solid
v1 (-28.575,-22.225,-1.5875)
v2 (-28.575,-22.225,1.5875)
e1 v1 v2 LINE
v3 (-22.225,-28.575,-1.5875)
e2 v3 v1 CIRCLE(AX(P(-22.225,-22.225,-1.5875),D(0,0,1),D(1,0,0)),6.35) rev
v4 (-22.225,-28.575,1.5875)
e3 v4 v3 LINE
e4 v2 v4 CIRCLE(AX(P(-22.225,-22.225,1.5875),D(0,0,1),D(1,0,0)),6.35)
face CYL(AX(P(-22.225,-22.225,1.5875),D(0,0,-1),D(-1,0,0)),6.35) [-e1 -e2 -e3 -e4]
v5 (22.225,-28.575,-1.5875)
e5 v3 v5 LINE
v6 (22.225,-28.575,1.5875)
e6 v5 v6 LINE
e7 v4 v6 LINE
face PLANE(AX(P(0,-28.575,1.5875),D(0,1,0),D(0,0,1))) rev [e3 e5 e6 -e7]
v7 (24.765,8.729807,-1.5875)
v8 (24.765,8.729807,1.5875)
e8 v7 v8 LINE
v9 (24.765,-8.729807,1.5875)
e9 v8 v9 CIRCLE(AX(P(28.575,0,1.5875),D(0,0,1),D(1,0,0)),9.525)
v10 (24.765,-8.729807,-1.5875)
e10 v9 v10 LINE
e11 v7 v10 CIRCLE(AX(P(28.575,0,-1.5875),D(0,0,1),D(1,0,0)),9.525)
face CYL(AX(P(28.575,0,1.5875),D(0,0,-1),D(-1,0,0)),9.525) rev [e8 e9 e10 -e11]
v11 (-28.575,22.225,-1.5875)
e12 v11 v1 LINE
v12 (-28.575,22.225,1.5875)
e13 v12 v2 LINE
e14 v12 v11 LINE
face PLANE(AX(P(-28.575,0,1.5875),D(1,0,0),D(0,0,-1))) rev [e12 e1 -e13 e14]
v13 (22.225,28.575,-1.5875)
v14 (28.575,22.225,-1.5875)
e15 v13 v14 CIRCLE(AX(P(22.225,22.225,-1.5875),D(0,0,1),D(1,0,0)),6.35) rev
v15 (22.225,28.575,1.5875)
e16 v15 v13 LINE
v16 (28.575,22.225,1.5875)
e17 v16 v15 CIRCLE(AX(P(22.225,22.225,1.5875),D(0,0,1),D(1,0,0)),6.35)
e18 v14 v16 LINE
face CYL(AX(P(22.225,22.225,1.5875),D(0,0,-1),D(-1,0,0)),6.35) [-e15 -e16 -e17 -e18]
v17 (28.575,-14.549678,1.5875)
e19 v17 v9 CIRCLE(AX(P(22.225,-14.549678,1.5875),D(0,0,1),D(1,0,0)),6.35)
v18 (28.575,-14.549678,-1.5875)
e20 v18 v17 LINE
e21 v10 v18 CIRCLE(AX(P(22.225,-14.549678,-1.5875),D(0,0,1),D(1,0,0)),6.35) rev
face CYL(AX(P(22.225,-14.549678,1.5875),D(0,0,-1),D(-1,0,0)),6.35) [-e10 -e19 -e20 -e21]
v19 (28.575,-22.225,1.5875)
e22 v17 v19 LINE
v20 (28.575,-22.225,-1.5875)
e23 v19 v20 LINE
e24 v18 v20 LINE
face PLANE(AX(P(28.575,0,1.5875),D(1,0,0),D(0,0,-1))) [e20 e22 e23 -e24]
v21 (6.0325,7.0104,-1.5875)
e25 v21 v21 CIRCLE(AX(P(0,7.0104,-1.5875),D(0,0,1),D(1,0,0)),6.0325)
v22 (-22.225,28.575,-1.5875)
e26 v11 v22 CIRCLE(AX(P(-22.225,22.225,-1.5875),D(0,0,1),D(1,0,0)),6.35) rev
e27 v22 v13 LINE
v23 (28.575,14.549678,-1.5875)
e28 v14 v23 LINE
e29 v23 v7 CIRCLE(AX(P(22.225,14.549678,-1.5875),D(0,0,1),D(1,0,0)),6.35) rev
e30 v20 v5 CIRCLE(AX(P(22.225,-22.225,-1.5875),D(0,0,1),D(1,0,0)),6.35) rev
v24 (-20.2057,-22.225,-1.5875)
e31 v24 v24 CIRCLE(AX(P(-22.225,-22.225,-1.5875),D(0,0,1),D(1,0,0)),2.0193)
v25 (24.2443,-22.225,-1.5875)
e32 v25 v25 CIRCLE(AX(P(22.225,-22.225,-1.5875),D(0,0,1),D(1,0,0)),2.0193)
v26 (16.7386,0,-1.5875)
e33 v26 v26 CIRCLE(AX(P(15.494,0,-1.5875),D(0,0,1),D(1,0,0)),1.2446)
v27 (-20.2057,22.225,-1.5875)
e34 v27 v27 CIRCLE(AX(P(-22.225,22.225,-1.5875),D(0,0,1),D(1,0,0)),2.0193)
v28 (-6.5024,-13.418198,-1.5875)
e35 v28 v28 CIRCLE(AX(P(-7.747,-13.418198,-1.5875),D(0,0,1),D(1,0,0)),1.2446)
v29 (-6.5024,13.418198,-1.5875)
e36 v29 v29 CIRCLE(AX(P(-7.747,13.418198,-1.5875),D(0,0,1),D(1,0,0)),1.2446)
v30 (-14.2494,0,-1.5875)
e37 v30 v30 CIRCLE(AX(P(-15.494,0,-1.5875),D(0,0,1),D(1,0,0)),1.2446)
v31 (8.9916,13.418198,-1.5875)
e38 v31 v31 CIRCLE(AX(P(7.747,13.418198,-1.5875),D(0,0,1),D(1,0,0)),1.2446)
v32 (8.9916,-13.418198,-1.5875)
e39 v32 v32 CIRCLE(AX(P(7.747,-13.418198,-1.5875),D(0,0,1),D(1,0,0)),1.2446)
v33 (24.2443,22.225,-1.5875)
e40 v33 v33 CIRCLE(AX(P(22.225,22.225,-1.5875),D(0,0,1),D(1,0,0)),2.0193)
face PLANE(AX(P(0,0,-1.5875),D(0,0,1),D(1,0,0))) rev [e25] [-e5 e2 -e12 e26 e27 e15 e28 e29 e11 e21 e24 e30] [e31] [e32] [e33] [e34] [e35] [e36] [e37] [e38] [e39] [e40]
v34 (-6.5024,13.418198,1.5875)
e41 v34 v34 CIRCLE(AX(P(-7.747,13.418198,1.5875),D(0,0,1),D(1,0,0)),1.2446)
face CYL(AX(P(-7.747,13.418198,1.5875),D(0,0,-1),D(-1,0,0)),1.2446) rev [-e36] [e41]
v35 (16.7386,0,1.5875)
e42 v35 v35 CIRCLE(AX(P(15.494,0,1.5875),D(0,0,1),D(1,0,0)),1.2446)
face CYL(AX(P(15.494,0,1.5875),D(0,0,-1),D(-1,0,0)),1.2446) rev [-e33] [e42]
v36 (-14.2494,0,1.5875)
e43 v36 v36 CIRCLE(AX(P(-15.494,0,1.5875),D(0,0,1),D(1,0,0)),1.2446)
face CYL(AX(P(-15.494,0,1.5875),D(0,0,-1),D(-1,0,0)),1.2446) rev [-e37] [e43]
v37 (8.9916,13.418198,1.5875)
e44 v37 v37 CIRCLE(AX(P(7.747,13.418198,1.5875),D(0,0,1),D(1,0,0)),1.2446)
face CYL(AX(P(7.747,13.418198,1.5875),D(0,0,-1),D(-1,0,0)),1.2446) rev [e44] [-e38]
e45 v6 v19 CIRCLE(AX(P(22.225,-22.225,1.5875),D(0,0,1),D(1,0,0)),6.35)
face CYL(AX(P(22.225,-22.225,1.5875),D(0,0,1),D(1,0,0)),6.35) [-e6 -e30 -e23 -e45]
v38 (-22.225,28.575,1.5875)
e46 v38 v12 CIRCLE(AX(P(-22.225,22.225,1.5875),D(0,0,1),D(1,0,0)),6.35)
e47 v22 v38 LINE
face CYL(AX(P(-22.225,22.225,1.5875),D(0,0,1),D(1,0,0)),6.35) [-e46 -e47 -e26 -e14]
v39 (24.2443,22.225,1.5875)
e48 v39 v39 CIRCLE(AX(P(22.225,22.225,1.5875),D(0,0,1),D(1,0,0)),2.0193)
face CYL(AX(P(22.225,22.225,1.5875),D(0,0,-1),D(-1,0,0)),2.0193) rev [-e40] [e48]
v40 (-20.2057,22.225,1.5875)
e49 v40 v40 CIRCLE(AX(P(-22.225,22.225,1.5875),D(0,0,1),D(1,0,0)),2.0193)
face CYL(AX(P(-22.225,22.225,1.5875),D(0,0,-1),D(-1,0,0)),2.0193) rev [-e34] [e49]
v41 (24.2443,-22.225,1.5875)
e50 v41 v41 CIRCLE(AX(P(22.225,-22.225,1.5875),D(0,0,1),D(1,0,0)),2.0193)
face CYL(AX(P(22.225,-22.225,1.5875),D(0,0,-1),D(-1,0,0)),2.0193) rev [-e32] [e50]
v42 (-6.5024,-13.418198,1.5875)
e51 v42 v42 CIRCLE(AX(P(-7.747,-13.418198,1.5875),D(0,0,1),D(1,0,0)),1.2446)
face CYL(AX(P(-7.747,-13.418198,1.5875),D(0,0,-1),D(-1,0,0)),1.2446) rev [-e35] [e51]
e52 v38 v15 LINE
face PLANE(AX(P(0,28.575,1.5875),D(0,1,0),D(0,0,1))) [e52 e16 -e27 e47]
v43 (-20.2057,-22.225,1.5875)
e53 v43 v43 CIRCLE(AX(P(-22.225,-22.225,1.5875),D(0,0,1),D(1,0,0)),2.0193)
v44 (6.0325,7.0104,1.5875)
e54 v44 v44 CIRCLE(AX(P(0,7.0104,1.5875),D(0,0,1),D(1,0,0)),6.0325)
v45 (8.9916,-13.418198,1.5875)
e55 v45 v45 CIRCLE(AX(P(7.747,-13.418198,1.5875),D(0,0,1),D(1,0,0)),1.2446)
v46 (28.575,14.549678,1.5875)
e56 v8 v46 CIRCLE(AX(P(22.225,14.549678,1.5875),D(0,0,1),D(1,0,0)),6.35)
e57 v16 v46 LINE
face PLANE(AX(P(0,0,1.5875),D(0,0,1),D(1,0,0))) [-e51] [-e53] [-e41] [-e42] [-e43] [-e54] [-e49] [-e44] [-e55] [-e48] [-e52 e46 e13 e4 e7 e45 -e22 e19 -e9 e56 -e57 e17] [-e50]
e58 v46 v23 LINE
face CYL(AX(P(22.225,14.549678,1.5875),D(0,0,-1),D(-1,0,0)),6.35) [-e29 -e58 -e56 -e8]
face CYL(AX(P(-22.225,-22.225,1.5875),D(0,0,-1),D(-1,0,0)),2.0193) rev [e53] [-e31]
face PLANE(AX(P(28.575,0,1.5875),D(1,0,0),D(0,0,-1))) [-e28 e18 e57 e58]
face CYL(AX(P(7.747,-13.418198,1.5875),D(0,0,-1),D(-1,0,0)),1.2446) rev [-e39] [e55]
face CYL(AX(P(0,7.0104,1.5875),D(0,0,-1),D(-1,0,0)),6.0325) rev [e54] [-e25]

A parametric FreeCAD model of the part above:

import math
import FreeCAD as App
import Part
import Sketcher
from FreeCAD import Vector
Q = App.Units.Quantity


def edges_at(feature, points):
    """Names of the edges that pass closest to the given points."""
    edges = feature.Shape.Edges
    near = lambda p: min(range(len(edges)), key=lambda i: edges[i].distToShape(Part.Vertex(*p))[0])
    return sorted({f"Edge{near(p) + 1}" for p in points})

doc = App.newDocument("Part")
body = doc.addObject("PartDesign::Body", "Body")

# Sketch on XY plane
sketch1 = doc.addObject("Sketcher::SketchObject", "Sketch")
body.addObject(sketch1)
sketch1.AttachmentSupport = (doc.XY_Plane, [""])
sketch1.MapMode = "FlatFace"
sketch1.addGeometry([
    Part.LineSegment(Vector(28.6, 28.6, 0), Vector(-28.6, 28.6, 0)),  # 0
    Part.LineSegment(Vector(-28.6, 28.6, 0), Vector(-28.6, -28.6, 0)),  # 1
    Part.LineSegment(Vector(-28.6, -28.6, 0), Vector(28.6, -28.6, 0)),  # 2
    Part.LineSegment(Vector(28.6, -28.6, 0), Vector(28.6, -9.5, 0)),  # 3
    Part.ArcOfCircle(Part.Circle(Vector(28.6, 0, 0), Vector(0, 0, 1), 9.5), math.radians(90), math.radians(270)),  # 4
    Part.LineSegment(Vector(28.6, 9.5, 0), Vector(28.6, 28.6, 0)),  # 5
    Part.Circle(Vector(-22.2, -22.2, 0), Vector(0, 0, 1), 2),  # 6
    Part.Circle(Vector(-7.7, -13.4, 0), Vector(0, 0, 1), 1.2),  # 7
    Part.Circle(Vector(7.7, -13.4, 0), Vector(0, 0, 1), 1.2),  # 8
    Part.Circle(Vector(22.2, -22.2, 0), Vector(0, 0, 1), 2),  # 9
    Part.Circle(Vector(-15.5, 0, 0), Vector(0, 0, 1), 1.2),  # 10
    Part.Circle(Vector(-22.2, 22.2, 0), Vector(0, 0, 1), 2),  # 11
    Part.Circle(Vector(-7.7, 13.4, 0), Vector(0, 0, 1), 1.2),  # 12
    Part.Circle(Vector(0, 7, 0), Vector(0, 0, 1), 6),  # 13
    Part.Circle(Vector(15.5, 0, 0), Vector(0, 0, 1), 1.2),  # 14
    Part.Circle(Vector(7.7, 13.4, 0), Vector(0, 0, 1), 1.2),  # 15
    Part.Circle(Vector(22.2, 22.2, 0), Vector(0, 0, 1), 2),  # 16
], False)
sketch1.addConstraint([
    Sketcher.Constraint("Coincident", 0, 2, 1, 1),
    Sketcher.Constraint("Coincident", 1, 2, 2, 1),
    Sketcher.Constraint("Coincident", 2, 2, 3, 1),
    Sketcher.Constraint("Coincident", 3, 2, 4, 2),
    Sketcher.Constraint("Coincident", 4, 1, 5, 1),
    Sketcher.Constraint("Coincident", 5, 2, 0, 1),
    Sketcher.Constraint("Horizontal", 0),
    Sketcher.Constraint("Vertical", 1),
    Sketcher.Constraint("Horizontal", 2),
    Sketcher.Constraint("Vertical", 3),
    Sketcher.Constraint("Vertical", 5),
    Sketcher.Constraint("Equal", 7, 8),
    Sketcher.Constraint("Equal", 6, 9),
    Sketcher.Constraint("Equal", 8, 10),
    Sketcher.Constraint("Equal", 9, 11),
    Sketcher.Constraint("Equal", 10, 12),
    Sketcher.Constraint("Equal", 12, 14),
    Sketcher.Constraint("Equal", 14, 15),
    Sketcher.Constraint("Equal", 11, 16),
    Sketcher.Constraint("Symmetric", 9, 3, 11, 3, -1, 1),
    Sketcher.Constraint("Symmetric", 8, 3, 12, 3, -1, 1),
    Sketcher.Constraint("Symmetric", 10, 3, 14, 3, -1, 1),
    Sketcher.Constraint("Symmetric", 7, 3, 15, 3, -1, 1),
    Sketcher.Constraint("Symmetric", 6, 3, 16, 3, -1, 1),
    Sketcher.Constraint("Symmetric", 0, 2, 2, 2, -1, 1),
    Sketcher.Constraint("Symmetric", 7, 3, 8, 3, -2),
    Sketcher.Constraint("Symmetric", 6, 3, 9, 3, -2),
    Sketcher.Constraint("Symmetric", 3, 2, 4, 1, -1),
    Sketcher.Constraint("PointOnObject", 10, 3, -1),
    Sketcher.Constraint("PointOnObject", 13, 3, -2),
    Sketcher.Constraint("Vertical", 4, 3, 2, 2),
    Sketcher.Constraint("Equal", 2, 1),
    Sketcher.Constraint("Diameter", 6, Q("0.159 in")),
    Sketcher.Constraint("Diameter", 7, Q("0.098 in")),
    Sketcher.Constraint("Diameter", 13, Q("0.475 in")),
    Sketcher.Constraint("Radius", 4, Q("0.375 in")),
    Sketcher.Constraint("DistanceX", 6, 3, 4, 3, Q("2 in")),
    Sketcher.Constraint("DistanceX", 0, 2, 0, 1, Q("2.25 in")),
    Sketcher.Constraint("DistanceY", 9, 3, 3, 2, Q("0.5 in")),
    Sketcher.Constraint("DistanceX", 10, 3, -1, 1, Q("0.61 in")),
    Sketcher.Constraint("DistanceX", 6, 3, 7, 3, Q("0.57 in")),
    Sketcher.Constraint("DistanceY", -1, 1, 13, 3, Q("0.276 in")),
    Sketcher.Constraint("DistanceY", 7, 3, -1, 1, 13.418198),
])
pad1 = doc.addObject("PartDesign::Pad", "Pad")
body.addObject(pad1)
pad1.Profile = sketch1
pad1.Length = Q("0.125 in")
pad1.Midplane = True
doc.recompute()

fillet = doc.addObject("PartDesign::Fillet", "Fillet")
body.addObject(fillet)
fillet.Base = (pad1, edges_at(pad1, [
    (28.575, -9.525, 0),
    (28.575, -28.575, 0),
    (-28.575, -28.575, 0),
    (-28.575, 28.575, 0),
    (28.575, 28.575, 0),
    (28.575, 9.525, 0),
]))
fillet.Radius = Q("0.25 in")

doc.recompute()
